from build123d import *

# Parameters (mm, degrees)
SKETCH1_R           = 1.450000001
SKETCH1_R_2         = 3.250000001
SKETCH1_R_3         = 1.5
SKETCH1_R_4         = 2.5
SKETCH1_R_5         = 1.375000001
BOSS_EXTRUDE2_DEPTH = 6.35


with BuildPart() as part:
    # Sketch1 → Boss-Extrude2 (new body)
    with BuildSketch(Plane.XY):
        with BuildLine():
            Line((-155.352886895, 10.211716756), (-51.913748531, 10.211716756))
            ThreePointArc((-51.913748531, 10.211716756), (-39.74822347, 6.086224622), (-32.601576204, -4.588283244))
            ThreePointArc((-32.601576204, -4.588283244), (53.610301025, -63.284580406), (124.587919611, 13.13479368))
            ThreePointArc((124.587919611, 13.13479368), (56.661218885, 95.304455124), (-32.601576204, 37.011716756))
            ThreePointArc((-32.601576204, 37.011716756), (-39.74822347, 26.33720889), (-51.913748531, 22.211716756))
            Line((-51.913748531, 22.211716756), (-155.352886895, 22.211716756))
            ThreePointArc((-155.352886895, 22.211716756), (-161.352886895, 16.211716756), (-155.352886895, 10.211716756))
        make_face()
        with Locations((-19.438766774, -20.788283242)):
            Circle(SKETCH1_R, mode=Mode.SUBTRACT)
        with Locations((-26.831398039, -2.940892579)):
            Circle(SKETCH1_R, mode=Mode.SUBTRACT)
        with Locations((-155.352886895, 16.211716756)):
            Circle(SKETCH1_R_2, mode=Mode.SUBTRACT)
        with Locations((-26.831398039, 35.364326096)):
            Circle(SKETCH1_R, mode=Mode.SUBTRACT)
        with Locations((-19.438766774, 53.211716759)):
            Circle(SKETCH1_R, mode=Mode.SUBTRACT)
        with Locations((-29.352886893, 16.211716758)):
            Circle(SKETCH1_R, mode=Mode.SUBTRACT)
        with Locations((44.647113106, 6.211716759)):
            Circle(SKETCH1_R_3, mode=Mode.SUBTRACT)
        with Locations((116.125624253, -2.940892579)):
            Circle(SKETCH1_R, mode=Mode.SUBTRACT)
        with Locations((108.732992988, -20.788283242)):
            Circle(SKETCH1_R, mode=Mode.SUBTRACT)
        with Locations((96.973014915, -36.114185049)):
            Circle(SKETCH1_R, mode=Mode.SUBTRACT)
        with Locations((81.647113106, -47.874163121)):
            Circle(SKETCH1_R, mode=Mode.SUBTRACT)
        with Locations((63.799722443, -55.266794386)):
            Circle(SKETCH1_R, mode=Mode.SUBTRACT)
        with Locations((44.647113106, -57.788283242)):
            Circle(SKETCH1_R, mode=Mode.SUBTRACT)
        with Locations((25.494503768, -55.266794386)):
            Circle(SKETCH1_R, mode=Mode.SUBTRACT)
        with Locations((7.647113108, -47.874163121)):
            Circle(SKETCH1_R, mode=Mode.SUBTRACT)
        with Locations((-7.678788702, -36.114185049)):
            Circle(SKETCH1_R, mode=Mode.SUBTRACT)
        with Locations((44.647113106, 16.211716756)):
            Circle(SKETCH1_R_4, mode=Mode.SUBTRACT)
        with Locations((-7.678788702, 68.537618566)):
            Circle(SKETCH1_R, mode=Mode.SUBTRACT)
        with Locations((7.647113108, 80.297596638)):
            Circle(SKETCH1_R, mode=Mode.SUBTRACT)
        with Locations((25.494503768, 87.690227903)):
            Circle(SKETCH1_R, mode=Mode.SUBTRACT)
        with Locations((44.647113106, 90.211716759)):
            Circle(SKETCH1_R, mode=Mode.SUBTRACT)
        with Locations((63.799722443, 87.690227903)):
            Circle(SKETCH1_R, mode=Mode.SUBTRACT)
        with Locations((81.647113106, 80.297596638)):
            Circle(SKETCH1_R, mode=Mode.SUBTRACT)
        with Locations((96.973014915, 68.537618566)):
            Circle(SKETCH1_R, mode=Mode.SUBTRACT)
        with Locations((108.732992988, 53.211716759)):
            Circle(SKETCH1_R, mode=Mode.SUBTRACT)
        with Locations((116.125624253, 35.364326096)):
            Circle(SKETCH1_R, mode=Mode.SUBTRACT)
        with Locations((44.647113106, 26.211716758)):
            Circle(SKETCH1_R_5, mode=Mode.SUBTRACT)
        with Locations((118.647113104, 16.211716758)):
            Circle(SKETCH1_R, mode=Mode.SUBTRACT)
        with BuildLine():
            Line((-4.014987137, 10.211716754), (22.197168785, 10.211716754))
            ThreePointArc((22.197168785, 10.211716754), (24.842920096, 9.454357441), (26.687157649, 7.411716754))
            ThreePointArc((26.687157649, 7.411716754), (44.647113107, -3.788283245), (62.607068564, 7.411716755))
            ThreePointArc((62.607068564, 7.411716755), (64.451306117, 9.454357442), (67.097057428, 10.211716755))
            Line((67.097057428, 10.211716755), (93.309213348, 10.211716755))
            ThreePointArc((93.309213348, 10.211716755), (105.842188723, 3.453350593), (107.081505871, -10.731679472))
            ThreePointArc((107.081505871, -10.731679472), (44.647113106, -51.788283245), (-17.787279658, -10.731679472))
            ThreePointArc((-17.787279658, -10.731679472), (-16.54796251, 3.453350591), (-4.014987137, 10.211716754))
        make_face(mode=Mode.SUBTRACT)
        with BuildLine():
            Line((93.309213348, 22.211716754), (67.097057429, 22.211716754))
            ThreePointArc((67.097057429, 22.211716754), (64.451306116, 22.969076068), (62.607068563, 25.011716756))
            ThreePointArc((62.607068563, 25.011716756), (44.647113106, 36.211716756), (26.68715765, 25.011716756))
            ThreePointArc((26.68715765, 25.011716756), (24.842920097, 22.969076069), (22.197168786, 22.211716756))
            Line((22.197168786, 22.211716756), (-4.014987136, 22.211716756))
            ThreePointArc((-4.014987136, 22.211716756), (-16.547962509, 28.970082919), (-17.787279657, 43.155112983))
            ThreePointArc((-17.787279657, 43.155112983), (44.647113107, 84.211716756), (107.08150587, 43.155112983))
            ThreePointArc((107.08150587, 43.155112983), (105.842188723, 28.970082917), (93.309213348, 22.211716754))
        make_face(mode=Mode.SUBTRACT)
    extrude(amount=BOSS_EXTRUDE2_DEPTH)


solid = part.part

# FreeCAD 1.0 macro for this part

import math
import FreeCAD as App
import Part
import Sketcher
Q = App.Units.Quantity

doc = App.newDocument("Part")
body = doc.addObject("PartDesign::Body", "Body")

# Sketch on XY plane
sketch1 = body.newObject("Sketcher::SketchObject", "Sketch")
sketch1.AttachmentSupport = (doc.getObject("XY_Plane"), [""])
sketch1.MapMode = "FlatFace"
sketch1.addGeometry([
    Part.LineSegment(App.Vector(-155.352887, 10.211717, 0), App.Vector(-51.913749, 10.211717, 0)),  # 0
    Part.ArcOfCircle(Part.Circle(App.Vector(-51.913749, -9.788283, 0), App.Vector(0, 0, 1), 20), math.radians(15.070062), math.radians(90)),  # 1
    Part.ArcOfCircle(Part.Circle(App.Vector(44.647113, 16.211717, 0), App.Vector(0, 0, 1), 80), math.radians(-164.929938), math.radians(-2.204228)),  # 2
    Part.ArcOfCircle(Part.Circle(App.Vector(44.647113, 16.211717, 0), App.Vector(0, 0, 1), 80), math.radians(-2.204228), math.radians(164.929938)),  # 3
    Part.ArcOfCircle(Part.Circle(App.Vector(-51.913749, 42.211717, 0), App.Vector(0, 0, 1), 20), math.radians(-90), math.radians(-15.070062)),  # 4
    Part.LineSegment(App.Vector(-51.913749, 22.211717, 0), App.Vector(-155.352887, 22.211717, 0)),  # 5
    Part.ArcOfCircle(Part.Circle(App.Vector(-155.352887, 16.211717, 0), App.Vector(0, 0, 1), 6), math.radians(90), math.radians(270)),  # 6
    Part.Circle(App.Vector(-155.352887, 16.211717, 0), App.Vector(0, 0, 1), 3.25),  # 7
    Part.Circle(App.Vector(-19.438767, -20.788283, 0), App.Vector(0, 0, 1), 1.45),  # 8
    Part.Circle(App.Vector(-26.831398, -2.940893, 0), App.Vector(0, 0, 1), 1.45),  # 9
    Part.Circle(App.Vector(-29.352887, 16.211717, 0), App.Vector(0, 0, 1), 1.45),  # 10
    Part.Circle(App.Vector(7.647113, -47.874163, 0), App.Vector(0, 0, 1), 1.45),  # 11
    Part.Circle(App.Vector(25.494504, -55.266794, 0), App.Vector(0, 0, 1), 1.45),  # 12
    Part.Circle(App.Vector(44.647113, -57.788283, 0), App.Vector(0, 0, 1), 1.45),  # 13
    Part.Circle(App.Vector(-7.678789, -36.114185, 0), App.Vector(0, 0, 1), 1.45),  # 14
    Part.Circle(App.Vector(63.799722, -55.266794, 0), App.Vector(0, 0, 1), 1.45),  # 15
    Part.Circle(App.Vector(81.647113, -47.874163, 0), App.Vector(0, 0, 1), 1.45),  # 16
    Part.Circle(App.Vector(96.973015, -36.114185, 0), App.Vector(0, 0, 1), 1.45),  # 17
    Part.ArcOfCircle(Part.Circle(App.Vector(-4.014987, -4.788283, 0), App.Vector(0, 0, 1), 15), math.radians(90), math.radians(203.342484)),  # 18
    Part.LineSegment(App.Vector(-4.014987, 10.211717, 0), App.Vector(22.197169, 10.211717, 0)),  # 19
    Part.ArcOfCircle(Part.Circle(App.Vector(22.197169, 5.211717, 0), App.Vector(0, 0, 1), 5), math.radians(26.103881), math.radians(90)),  # 20
    Part.ArcOfCircle(Part.Circle(App.Vector(44.647113, 16.211717, 0), App.Vector(0, 0, 1), 20), math.radians(-153.896119), math.radians(-26.103881)),  # 21
    Part.ArcOfCircle(Part.Circle(App.Vector(67.097057, 5.211717, 0), App.Vector(0, 0, 1), 5), math.radians(90), math.radians(153.896119)),  # 22
    Part.LineSegment(App.Vector(67.097057, 10.211717, 0), App.Vector(93.309213, 10.211717, 0)),  # 23
    Part.ArcOfCircle(Part.Circle(App.Vector(93.309213, -4.788283, 0), App.Vector(0, 0, 1), 15), math.radians(-23.342484), math.radians(90)),  # 24
    Part.ArcOfCircle(Part.Circle(App.Vector(44.647113, 16.211717, 0), App.Vector(0, 0, 1), 68), math.radians(-156.657516), math.radians(-23.342484)),  # 25
    Part.Circle(App.Vector(44.647113, 6.211717, 0), App.Vector(0, 0, 1), 1.5),  # 26
    Part.Circle(App.Vector(44.647113, 16.211717, 0), App.Vector(0, 0, 1), 2.5),  # 27
    Part.Circle(App.Vector(108.732993, -20.788283, 0), App.Vector(0, 0, 1), 1.45),  # 28
    Part.Circle(App.Vector(116.125624, -2.940893, 0), App.Vector(0, 0, 1), 1.45),  # 29
    Part.Circle(App.Vector(118.647113, 16.211717, 0), App.Vector(0, 0, 1), 1.45),  # 30
    Part.Circle(App.Vector(-26.831398, 35.364326, 0), App.Vector(0, 0, 1), 1.45),  # 31
    Part.Circle(App.Vector(-19.438767, 53.211717, 0), App.Vector(0, 0, 1), 1.45),  # 32
    Part.Circle(App.Vector(44.647113, 26.211717, 0), App.Vector(0, 0, 1), 1.375),  # 33
    Part.ArcOfCircle(Part.Circle(App.Vector(93.309213, 37.211717, 0), App.Vector(0, 0, 1), 15), math.radians(-90), math.radians(23.342484)),  # 34
    Part.LineSegment(App.Vector(93.309213, 22.211717, 0), App.Vector(67.097057, 22.211717, 0)),  # 35
    Part.ArcOfCircle(Part.Circle(App.Vector(67.097057, 27.211717, 0), App.Vector(0, 0, 1), 5), math.radians(-153.896119), math.radians(-90)),  # 36
    Part.ArcOfCircle(Part.Circle(App.Vector(44.647113, 16.211717, 0), App.Vector(0, 0, 1), 20), math.radians(26.103881), math.radians(153.896119)),  # 37
    Part.ArcOfCircle(Part.Circle(App.Vector(22.197169, 27.211717, 0), App.Vector(0, 0, 1), 5), math.radians(-90), math.radians(-26.103881)),  # 38
    Part.LineSegment(App.Vector(22.197169, 22.211717, 0), App.Vector(-4.014987, 22.211717, 0)),  # 39
    Part.ArcOfCircle(Part.Circle(App.Vector(-4.014987, 37.211717, 0), App.Vector(0, 0, 1), 15), math.radians(156.657516), math.radians(270)),  # 40
    Part.ArcOfCircle(Part.Circle(App.Vector(44.647113, 16.211717, 0), App.Vector(0, 0, 1), 68), math.radians(23.342484), math.radians(156.657516)),  # 41
    Part.Circle(App.Vector(116.125624, 35.364326, 0), App.Vector(0, 0, 1), 1.45),  # 42
    Part.Circle(App.Vector(108.732993, 53.211717, 0), App.Vector(0, 0, 1), 1.45),  # 43
    Part.Circle(App.Vector(-7.678789, 68.537619, 0), App.Vector(0, 0, 1), 1.45),  # 44
    Part.Circle(App.Vector(7.647113, 80.297597, 0), App.Vector(0, 0, 1), 1.45),  # 45
    Part.Circle(App.Vector(25.494504, 87.690228, 0), App.Vector(0, 0, 1), 1.45),  # 46
    Part.Circle(App.Vector(44.647113, 90.211717, 0), App.Vector(0, 0, 1), 1.45),  # 47
    Part.Circle(App.Vector(96.973015, 68.537619, 0), App.Vector(0, 0, 1), 1.45),  # 48
    Part.Circle(App.Vector(81.647113, 80.297597, 0), App.Vector(0, 0, 1), 1.45),  # 49
    Part.Circle(App.Vector(63.799722, 87.690228, 0), App.Vector(0, 0, 1), 1.45),  # 50
], False)
sketch1.addConstraint([
    Sketcher.Constraint("Tangent", 0, 2, 1, 2),
    Sketcher.Constraint("Tangent", 1, 1, 2, 1),
    Sketcher.Constraint("Tangent", 2, 2, 3, 1),
    Sketcher.Constraint("Tangent", 3, 2, 4, 2),
    Sketcher.Constraint("Tangent", 4, 1, 5, 1),
    Sketcher.Constraint("Tangent", 5, 2, 6, 1),
    Sketcher.Constraint("Tangent", 6, 2, 0, 1),
    Sketcher.Constraint("Tangent", 18, 1, 19, 1),
    Sketcher.Constraint("Tangent", 19, 2, 20, 2),
    Sketcher.Constraint("Tangent", 20, 1, 21, 1),
    Sketcher.Constraint("Tangent", 21, 2, 22, 2),
    Sketcher.Constraint("Tangent", 22, 1, 23, 1),
    Sketcher.Constraint("Tangent", 23, 2, 24, 2),
    Sketcher.Constraint("Tangent", 24, 1, 25, 2),
    Sketcher.Constraint("Tangent", 25, 1, 18, 2),
    Sketcher.Constraint("Tangent", 34, 1, 35, 1),
    Sketcher.Constraint("Tangent", 35, 2, 36, 2),
    Sketcher.Constraint("Tangent", 36, 1, 37, 1),
    Sketcher.Constraint("Tangent", 37, 2, 38, 2),
    Sketcher.Constraint("Tangent", 38, 1, 39, 1),
    Sketcher.Constraint("Tangent", 39, 2, 40, 2),
    Sketcher.Constraint("Tangent", 40, 1, 41, 2),
    Sketcher.Constraint("Tangent", 41, 1, 34, 2),
    Sketcher.Constraint("Horizontal", 0),
    Sketcher.Constraint("Horizontal", 5),
    Sketcher.Constraint("Horizontal", 19),
    Sketcher.Constraint("Horizontal", 23),
    Sketcher.Constraint("Horizontal", 35),
    Sketcher.Constraint("Horizontal", 39),
    Sketcher.Constraint("Coincident", 7, 3, 6, 3),
    Sketcher.Constraint("Coincident", 21, 3, 2, 3),
    Sketcher.Constraint("Coincident", 25, 3, 2, 3),
    Sketcher.Constraint("Coincident", 27, 3, 2, 3),
    Sketcher.Constraint("Coincident", 37, 3, 2, 3),
    Sketcher.Constraint("Coincident", 41, 3, 2, 3),
    Sketcher.Constraint("Equal", 2, 3),
    Sketcher.Constraint("Equal", 1, 4),
    Sketcher.Constraint("Equal", 8, 9),
    Sketcher.Constraint("Equal", 9, 10),
    Sketcher.Constraint("Equal", 10, 11),
    Sketcher.Constraint("Equal", 11, 12),
    Sketcher.Constraint("Equal", 12, 13),
    Sketcher.Constraint("Equal", 13, 14),
    Sketcher.Constraint("Equal", 14, 15),
    Sketcher.Constraint("Equal", 15, 16),
    Sketcher.Constraint("Equal", 16, 17),
    Sketcher.Constraint("Equal", 4, 21),
    Sketcher.Constraint("Equal", 20, 22),
    Sketcher.Constraint("Equal", 18, 24),
    Sketcher.Constraint("Equal", 17, 28),
    Sketcher.Constraint("Equal", 28, 29),
    Sketcher.Constraint("Equal", 29, 30),
    Sketcher.Constraint("Equal", 30, 31),
    Sketcher.Constraint("Equal", 31, 32),
    Sketcher.Constraint("Equal", 24, 34),
    Sketcher.Constraint("Equal", 22, 36),
    Sketcher.Constraint("Equal", 21, 37),
    Sketcher.Constraint("Equal", 36, 38),
    Sketcher.Constraint("Equal", 34, 40),
    Sketcher.Constraint("Equal", 25, 41),
    Sketcher.Constraint("Equal", 32, 42),
    Sketcher.Constraint("Equal", 42, 43),
    Sketcher.Constraint("Equal", 43, 44),
    Sketcher.Constraint("Equal", 44, 45),
    Sketcher.Constraint("Equal", 45, 46),
    Sketcher.Constraint("Equal", 46, 47),
    Sketcher.Constraint("Equal", 47, 48),
    Sketcher.Constraint("Equal", 48, 49),
    Sketcher.Constraint("Equal", 49, 50),
    Sketcher.Constraint("Horizontal", 3, 3, 6, 3),
    Sketcher.Constraint("Horizontal", 7, 3, 10, 3),
    Sketcher.Constraint("Horizontal", 12, 3, 15, 3),
    Sketcher.Constraint("Horizontal", 11, 3, 16, 3),
    Sketcher.Constraint("Horizontal", 14, 3, 17, 3),
    Sketcher.Constraint("Horizontal", 20, 3, 22, 3),
    Sketcher.Constraint("Horizontal", 8, 3, 28, 3),
    Sketcher.Constraint("Horizontal", 9, 3, 29, 3),
    Sketcher.Constraint("Horizontal", 27, 3, 30, 3),
    Sketcher.Constraint("Horizontal", 36, 3, 38, 3),
    Sketcher.Constraint("Horizontal", 31, 3, 42, 3),
    Sketcher.Constraint("Horizontal", 32, 3, 43, 3),
    Sketcher.Constraint("Horizontal", 44, 3, 48, 3),
    Sketcher.Constraint("Horizontal", 45, 3, 49, 3),
    Sketcher.Constraint("Horizontal", 46, 3, 50, 3),
    Sketcher.Constraint("Horizontal", 6, 2, 18, 1),
    Sketcher.Constraint("Horizontal", 5, 2, 34, 1),
    Sketcher.Constraint("Vertical", 3, 3, 13, 3),
    Sketcher.Constraint("Vertical", 25, 3, 26, 3),
    Sketcher.Constraint("Vertical", 9, 3, 31, 3),
    Sketcher.Constraint("Vertical", 8, 3, 32, 3),
    Sketcher.Constraint("Vertical", 27, 3, 33, 3),
    Sketcher.Constraint("Vertical", 29, 3, 42, 3),
    Sketcher.Constraint("Vertical", 28, 3, 43, 3),
    Sketcher.Constraint("Vertical", 14, 3, 44, 3),
    Sketcher.Constraint("Vertical", 11, 3, 45, 3),
    Sketcher.Constraint("Vertical", 12, 3, 46, 3),
    Sketcher.Constraint("Vertical", 41, 3, 47, 3),
    Sketcher.Constraint("Vertical", 17, 3, 48, 3),
    Sketcher.Constraint("Vertical", 16, 3, 49, 3),
    Sketcher.Constraint("Vertical", 15, 3, 50, 3),
    Sketcher.Constraint("Diameter", 26, Q("3 mm")),
    Sketcher.Constraint("Diameter", 27, Q("5 mm")),
    Sketcher.Constraint("Radius", 1, Q("20 mm")),
    Sketcher.Constraint("Radius", 2, Q("80 mm")),
    Sketcher.Constraint("Radius", 6, Q("6 mm")),
    Sketcher.Constraint("Radius", 18, Q("15 mm")),
    Sketcher.Constraint("Radius", 20, Q("5 mm")),
    Sketcher.Constraint("Radius", 25, Q("68 mm")),
    Sketcher.Constraint("Diameter", 7, Q("6.5 mm")),
    Sketcher.Constraint("Diameter", 8, Q("2.9 mm")),
    Sketcher.Constraint("Diameter", 33, Q("2.75 mm")),
    Sketcher.Constraint("DistanceX", 0, 1, 0, 2, Q("103.439138 mm")),
    Sketcher.Constraint("DistanceX", 9, 3, -1, 1, Q("26.831398 mm")),
    Sketcher.Constraint("DistanceX", 1, 3, -1, 1, Q("51.913749 mm")),
    Sketcher.Constraint("DistanceX", 14, 3, -1, 1, Q("7.678789 mm")),
    Sketcher.Constraint("DistanceY", -1, 1, 44, 3, Q("68.537619 mm")),
    Sketcher.Constraint("DistanceX", -1, 1, 2, 2, Q("124.58792 mm")),
    Sketcher.Constraint("DistanceY", 24, 1, -1, 1, Q("10.731679 mm")),
    Sketcher.Constraint("DistanceX", 8, 3, -1, 1, Q("19.438767 mm")),
    Sketcher.Constraint("DistanceY", 8, 3, -1, 1, Q("20.788283 mm")),
    Sketcher.Constraint("DistanceY", 9, 3, -1, 1, Q("2.940893 mm")),
    Sketcher.Constraint("DistanceX", 10, 3, -1, 1, Q("29.352887 mm")),
    Sketcher.Constraint("DistanceX", -1, 1, 11, 3, Q("7.647113 mm")),
    Sketcher.Constraint("DistanceY", 11, 3, -1, 1, Q("47.874163 mm")),
    Sketcher.Constraint("DistanceX", -1, 1, 12, 3, Q("25.494504 mm")),
    Sketcher.Constraint("DistanceY", 12, 3, -1, 1, Q("55.266794 mm")),
    Sketcher.Constraint("DistanceY", 13, 3, -1, 1, Q("57.788283 mm")),
    Sketcher.Constraint("DistanceY", 14, 3, -1, 1, Q("36.114185 mm")),
    Sketcher.Constraint("DistanceX", -1, 1, 15, 3, Q("63.799722 mm")),
    Sketcher.Constraint("DistanceX", -1, 1, 16, 3, Q("81.647113 mm")),
    Sketcher.Constraint("DistanceX", -1, 1, 17, 3, Q("96.973015 mm")),
    Sketcher.Constraint("DistanceY", -1, 1, 26, 3, Q("6.211717 mm")),
    Sketcher.Constraint("DistanceX", -1, 1, 28, 3, Q("108.732993 mm")),
    Sketcher.Constraint("DistanceX", -1, 1, 29, 3, Q("116.125624 mm")),
    Sketcher.Constraint("DistanceX", -1, 1, 30, 3, Q("118.647113 mm")),
    Sketcher.Constraint("DistanceY", -1, 1, 31, 3, Q("35.364326 mm")),
    Sketcher.Constraint("DistanceY", -1, 1, 32, 3, Q("53.211717 mm")),
    Sketcher.Constraint("DistanceY", -1, 1, 33, 3, Q("26.211717 mm")),
    Sketcher.Constraint("DistanceY", -1, 1, 45, 3, Q("80.297597 mm")),
    Sketcher.Constraint("DistanceY", -1, 1, 46, 3, Q("87.690228 mm")),
    Sketcher.Constraint("DistanceY", -1, 1, 47, 3, Q("90.211717 mm")),
])
pad1 = body.newObject("PartDesign::Pad", "Pad")
pad1.Profile = sketch1
pad1.Length = 6.35

doc.recompute()
